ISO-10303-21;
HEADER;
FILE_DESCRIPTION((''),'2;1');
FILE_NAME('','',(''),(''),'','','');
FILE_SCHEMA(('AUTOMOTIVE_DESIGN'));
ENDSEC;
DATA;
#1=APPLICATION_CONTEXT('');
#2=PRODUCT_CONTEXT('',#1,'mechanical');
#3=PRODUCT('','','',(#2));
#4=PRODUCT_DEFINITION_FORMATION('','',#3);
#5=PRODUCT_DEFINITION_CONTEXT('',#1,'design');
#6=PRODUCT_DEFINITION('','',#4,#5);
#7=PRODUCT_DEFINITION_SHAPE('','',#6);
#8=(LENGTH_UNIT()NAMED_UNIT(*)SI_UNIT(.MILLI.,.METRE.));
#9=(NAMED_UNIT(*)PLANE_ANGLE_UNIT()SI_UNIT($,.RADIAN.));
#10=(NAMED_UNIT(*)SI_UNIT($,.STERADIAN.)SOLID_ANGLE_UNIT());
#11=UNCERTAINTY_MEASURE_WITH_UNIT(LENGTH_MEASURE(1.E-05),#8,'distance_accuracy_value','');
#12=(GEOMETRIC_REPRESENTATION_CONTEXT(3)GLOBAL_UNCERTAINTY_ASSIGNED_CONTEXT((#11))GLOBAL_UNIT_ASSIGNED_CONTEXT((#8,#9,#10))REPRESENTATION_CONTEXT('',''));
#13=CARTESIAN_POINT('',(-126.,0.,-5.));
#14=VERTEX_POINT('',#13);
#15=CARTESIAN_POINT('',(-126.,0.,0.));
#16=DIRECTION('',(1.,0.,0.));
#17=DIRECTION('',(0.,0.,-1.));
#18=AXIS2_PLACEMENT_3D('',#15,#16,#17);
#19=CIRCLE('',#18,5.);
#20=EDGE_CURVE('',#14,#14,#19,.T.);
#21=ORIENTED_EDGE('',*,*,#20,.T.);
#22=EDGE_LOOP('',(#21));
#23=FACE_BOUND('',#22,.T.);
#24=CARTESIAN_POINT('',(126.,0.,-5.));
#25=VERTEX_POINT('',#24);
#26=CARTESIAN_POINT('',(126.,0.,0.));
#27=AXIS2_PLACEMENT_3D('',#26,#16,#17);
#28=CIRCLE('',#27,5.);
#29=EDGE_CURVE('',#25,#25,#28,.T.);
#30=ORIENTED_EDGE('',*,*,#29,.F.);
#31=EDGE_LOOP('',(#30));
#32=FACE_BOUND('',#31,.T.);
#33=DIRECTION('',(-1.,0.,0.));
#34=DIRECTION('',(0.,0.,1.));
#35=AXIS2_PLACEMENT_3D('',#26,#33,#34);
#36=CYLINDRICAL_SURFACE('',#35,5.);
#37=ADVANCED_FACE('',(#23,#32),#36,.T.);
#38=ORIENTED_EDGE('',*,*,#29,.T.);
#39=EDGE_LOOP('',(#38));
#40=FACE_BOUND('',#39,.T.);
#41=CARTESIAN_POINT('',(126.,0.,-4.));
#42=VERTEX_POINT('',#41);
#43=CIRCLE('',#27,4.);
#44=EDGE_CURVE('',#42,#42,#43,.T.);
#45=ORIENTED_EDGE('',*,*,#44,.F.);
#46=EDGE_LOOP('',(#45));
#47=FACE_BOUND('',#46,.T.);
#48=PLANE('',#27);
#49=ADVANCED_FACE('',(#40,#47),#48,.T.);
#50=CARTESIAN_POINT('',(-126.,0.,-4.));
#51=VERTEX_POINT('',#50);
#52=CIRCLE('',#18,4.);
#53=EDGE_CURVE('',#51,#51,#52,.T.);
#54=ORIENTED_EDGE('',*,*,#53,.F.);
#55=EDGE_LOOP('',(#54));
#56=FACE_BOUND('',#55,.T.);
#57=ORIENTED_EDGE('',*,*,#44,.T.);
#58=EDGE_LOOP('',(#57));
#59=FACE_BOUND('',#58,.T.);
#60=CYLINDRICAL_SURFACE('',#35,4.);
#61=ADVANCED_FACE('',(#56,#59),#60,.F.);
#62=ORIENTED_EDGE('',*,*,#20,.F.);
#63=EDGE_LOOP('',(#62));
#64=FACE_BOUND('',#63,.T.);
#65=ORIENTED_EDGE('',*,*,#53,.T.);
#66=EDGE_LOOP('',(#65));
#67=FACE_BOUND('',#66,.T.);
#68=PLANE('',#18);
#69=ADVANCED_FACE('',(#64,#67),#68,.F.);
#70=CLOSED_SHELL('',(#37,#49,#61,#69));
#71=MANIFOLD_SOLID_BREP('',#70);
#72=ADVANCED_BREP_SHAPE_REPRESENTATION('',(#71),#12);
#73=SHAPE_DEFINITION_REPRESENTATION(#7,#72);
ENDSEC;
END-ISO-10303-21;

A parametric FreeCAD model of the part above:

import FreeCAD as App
import Part
import Sketcher

V = App.Vector

doc = App.newDocument("Part")
body = doc.addObject("PartDesign::Body", "Body")

# Sketch on YZ plane
sketch1 = doc.addObject("Sketcher::SketchObject", "Sketch")
body.addObject(sketch1)
sketch1.AttachmentSupport = (doc.YZ_Plane, [""])
sketch1.MapMode = "FlatFace"
sketch1.addGeometry([
    Part.Circle(V(0, 0, 0), V(0, 0, 1), 5),
    Part.Circle(V(0, 0, 0), V(0, 0, 1), 4),
], False)
sketch1.addConstraint([
    Sketcher.Constraint("Coincident", 0, 3, -1, 1),
    Sketcher.Constraint("Coincident", 1, 3, -1, 1),
    Sketcher.Constraint("Diameter", 0, 10.0),
    Sketcher.Constraint("Diameter", 1, 8.0),
])
pad1 = doc.addObject("PartDesign::Pad", "Pad")
body.addObject(pad1)
pad1.Profile = sketch1
pad1.Length = 252
pad1.Midplane = True

doc.recompute()
